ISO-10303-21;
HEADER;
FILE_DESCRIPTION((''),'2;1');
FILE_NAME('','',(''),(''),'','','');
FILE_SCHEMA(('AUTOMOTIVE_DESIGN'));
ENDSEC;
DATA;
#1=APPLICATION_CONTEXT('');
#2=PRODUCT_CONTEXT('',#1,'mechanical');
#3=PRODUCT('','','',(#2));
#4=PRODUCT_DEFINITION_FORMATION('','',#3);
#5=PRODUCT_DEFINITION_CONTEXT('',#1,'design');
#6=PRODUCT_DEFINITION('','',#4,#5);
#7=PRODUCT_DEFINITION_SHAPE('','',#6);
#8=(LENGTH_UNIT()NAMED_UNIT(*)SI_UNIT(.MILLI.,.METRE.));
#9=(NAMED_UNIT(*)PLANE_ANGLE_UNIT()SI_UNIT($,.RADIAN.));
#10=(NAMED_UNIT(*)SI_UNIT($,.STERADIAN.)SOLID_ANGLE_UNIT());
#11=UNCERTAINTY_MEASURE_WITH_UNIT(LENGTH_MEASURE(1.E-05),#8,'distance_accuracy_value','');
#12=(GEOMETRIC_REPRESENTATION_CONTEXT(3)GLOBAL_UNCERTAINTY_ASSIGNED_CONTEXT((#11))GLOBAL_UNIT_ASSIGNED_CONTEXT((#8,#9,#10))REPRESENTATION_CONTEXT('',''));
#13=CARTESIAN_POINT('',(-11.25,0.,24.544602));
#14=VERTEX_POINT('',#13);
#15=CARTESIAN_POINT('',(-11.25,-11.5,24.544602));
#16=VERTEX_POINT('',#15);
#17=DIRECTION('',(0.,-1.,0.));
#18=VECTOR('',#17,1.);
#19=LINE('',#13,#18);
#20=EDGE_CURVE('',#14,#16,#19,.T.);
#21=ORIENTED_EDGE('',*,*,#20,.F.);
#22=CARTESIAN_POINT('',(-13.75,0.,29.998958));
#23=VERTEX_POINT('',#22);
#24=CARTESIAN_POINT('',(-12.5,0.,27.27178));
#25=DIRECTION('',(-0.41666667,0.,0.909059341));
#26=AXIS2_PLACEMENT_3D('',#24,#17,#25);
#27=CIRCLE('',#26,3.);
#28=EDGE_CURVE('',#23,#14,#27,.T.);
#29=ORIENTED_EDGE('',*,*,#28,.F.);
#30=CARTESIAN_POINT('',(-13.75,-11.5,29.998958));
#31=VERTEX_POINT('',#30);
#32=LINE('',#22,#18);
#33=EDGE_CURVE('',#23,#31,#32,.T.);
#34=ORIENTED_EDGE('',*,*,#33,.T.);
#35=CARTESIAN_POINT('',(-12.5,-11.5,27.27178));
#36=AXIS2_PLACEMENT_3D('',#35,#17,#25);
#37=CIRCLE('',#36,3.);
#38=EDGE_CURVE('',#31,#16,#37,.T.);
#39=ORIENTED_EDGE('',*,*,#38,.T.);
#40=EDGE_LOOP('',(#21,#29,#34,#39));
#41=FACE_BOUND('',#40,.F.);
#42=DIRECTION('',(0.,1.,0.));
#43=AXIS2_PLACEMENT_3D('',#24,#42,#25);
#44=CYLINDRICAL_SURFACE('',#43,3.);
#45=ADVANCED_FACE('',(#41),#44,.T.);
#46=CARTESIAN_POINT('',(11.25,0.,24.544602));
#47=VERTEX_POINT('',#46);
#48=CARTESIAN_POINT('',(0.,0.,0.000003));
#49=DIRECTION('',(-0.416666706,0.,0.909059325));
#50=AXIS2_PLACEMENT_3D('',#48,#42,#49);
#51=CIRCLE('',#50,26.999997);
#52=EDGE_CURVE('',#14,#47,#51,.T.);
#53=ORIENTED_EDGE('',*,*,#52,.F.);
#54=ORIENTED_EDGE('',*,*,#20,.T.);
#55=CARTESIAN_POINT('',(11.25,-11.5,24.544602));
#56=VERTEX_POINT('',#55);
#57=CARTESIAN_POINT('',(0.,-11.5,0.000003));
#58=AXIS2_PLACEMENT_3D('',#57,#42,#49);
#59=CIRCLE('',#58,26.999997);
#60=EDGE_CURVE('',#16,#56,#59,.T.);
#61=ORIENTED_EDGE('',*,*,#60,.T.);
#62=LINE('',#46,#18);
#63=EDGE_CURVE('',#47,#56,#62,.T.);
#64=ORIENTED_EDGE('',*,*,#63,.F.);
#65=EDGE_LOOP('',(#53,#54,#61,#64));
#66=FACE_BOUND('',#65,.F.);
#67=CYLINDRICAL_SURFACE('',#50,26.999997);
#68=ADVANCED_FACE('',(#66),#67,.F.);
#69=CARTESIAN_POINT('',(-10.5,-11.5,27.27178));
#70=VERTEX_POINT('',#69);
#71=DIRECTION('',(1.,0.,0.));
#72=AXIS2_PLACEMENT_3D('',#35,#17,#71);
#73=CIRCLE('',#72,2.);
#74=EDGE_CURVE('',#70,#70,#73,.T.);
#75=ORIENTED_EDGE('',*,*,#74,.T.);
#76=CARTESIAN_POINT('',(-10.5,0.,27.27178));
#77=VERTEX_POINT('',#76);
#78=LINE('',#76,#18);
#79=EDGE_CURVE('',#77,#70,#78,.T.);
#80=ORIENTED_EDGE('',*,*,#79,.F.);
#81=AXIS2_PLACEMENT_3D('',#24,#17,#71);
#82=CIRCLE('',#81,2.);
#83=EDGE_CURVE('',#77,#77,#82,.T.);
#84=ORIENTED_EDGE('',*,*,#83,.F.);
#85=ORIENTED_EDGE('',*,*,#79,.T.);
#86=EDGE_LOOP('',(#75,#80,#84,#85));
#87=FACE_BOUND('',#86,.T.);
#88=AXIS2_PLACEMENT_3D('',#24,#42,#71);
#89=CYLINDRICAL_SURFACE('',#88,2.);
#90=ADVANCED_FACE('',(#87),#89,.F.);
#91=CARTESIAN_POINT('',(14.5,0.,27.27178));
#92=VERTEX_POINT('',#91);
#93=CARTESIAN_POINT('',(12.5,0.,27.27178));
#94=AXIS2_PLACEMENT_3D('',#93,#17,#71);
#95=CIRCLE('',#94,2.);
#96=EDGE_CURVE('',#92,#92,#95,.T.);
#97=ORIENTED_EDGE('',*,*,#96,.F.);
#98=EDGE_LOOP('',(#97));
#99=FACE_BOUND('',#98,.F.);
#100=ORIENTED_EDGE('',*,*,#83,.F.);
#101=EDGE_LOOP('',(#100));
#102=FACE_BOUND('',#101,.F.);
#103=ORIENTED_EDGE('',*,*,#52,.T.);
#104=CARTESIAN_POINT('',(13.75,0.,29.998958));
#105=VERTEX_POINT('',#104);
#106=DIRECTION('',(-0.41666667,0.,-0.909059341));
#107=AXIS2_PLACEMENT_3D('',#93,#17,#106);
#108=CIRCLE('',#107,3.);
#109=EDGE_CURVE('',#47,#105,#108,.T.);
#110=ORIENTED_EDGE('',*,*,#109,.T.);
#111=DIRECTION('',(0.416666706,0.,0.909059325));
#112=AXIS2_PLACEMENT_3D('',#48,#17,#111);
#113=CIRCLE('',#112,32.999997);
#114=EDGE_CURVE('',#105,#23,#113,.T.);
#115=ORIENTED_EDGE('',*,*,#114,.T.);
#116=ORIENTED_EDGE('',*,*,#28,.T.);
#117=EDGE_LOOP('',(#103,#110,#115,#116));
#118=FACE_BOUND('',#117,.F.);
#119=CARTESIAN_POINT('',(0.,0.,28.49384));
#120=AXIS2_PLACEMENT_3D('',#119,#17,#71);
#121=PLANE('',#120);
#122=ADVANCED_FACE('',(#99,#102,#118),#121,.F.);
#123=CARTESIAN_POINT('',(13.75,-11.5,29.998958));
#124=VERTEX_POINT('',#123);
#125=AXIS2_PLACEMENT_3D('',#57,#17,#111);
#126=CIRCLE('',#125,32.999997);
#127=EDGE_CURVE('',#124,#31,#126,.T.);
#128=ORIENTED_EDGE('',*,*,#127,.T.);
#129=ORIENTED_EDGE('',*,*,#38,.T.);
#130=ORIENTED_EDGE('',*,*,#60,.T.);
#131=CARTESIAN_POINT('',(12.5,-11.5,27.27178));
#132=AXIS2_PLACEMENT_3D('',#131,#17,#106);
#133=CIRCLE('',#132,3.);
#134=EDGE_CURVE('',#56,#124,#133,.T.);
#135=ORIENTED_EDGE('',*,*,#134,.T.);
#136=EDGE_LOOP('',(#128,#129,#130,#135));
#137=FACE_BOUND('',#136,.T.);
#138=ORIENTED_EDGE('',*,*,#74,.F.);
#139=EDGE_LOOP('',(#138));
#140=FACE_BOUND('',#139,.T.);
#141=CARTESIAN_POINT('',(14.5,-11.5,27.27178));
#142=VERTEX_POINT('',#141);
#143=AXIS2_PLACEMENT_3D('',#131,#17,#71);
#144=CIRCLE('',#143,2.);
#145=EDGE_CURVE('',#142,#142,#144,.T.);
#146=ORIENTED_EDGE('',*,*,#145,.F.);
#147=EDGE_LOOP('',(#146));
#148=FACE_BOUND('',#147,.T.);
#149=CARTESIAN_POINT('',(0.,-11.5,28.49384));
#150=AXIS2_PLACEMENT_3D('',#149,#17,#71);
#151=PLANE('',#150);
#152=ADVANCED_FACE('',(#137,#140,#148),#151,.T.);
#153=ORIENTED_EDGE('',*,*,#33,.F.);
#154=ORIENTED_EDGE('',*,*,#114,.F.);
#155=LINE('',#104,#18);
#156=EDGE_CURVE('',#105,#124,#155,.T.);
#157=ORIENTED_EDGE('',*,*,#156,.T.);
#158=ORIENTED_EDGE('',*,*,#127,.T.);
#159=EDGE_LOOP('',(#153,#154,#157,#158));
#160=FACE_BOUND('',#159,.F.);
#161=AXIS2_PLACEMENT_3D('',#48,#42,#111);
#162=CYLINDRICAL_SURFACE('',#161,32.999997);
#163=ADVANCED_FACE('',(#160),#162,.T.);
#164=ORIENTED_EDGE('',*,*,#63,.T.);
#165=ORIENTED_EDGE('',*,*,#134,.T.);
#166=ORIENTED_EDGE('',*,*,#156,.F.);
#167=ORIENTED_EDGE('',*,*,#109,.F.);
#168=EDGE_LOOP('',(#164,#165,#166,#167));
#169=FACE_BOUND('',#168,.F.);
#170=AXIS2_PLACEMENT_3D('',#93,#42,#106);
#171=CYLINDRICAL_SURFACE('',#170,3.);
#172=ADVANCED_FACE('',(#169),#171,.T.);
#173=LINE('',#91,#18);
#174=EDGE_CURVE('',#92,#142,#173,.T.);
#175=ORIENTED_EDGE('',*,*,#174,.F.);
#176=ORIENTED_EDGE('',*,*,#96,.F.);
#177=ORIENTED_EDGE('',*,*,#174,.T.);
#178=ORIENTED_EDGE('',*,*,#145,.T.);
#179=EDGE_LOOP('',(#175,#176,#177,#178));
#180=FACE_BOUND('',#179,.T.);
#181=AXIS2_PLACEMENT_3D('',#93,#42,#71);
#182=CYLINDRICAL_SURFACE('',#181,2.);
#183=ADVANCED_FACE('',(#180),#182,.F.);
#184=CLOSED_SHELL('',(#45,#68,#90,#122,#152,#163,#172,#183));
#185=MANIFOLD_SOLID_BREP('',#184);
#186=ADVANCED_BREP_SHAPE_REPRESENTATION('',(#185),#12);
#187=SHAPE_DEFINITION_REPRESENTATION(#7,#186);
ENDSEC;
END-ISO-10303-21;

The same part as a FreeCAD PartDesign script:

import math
import FreeCAD as App
import Part
import Sketcher
from FreeCAD import Vector
Q = App.Units.Quantity

doc = App.newDocument("Part")
params = doc.addObject("Spreadsheet::Sheet", "Params")
for row, (alias, value) in enumerate([
    ("sketch1_diameter", "4 mm"),
    ("sketch1_radius", "3 mm"),
    ("pad1_length", "11.5 mm"),
], start=1):
    params.set(f"A{row}", alias)
    params.set(f"B{row}", "=" + value)
    params.setAlias(f"B{row}", alias)

body = doc.addObject("PartDesign::Body", "Body")

# Sketch on XZ plane
sketch1 = body.newObject("Sketcher::SketchObject", "Sketch")
sketch1.AttachmentSupport = (doc.getObject("XZ_Plane"), [""])
sketch1.MapMode = "FlatFace"
sketch1.addGeometry([
    Part.ArcOfCircle(Part.Circle(Vector(12.5, 27.3, 0), Vector(0, 0, 1), 3), math.radians(-115), math.radians(65)),  # 0
    Part.ArcOfCircle(Part.Circle(Vector(0, 0, 0), Vector(0, 0, 1), 33), math.radians(65), math.radians(115)),  # 1
    Part.ArcOfCircle(Part.Circle(Vector(-12.5, 27.3, 0), Vector(0, 0, 1), 3), math.radians(115), math.radians(295)),  # 2
    Part.ArcOfCircle(Part.Circle(Vector(0, 0, 0), Vector(0, 0, 1), 27), math.radians(65), math.radians(115)),  # 3
    Part.Circle(Vector(-12.5, 27.3, 0), Vector(0, 0, 1), 2),  # 4
    Part.Circle(Vector(12.5, 27.3, 0), Vector(0, 0, 1), 2),  # 5
], False)
sketch1.addConstraint([
    Sketcher.Constraint("Tangent", 0, 2, 1, 1),
    Sketcher.Constraint("Tangent", 1, 2, 2, 1),
    Sketcher.Constraint("Tangent", 2, 2, 3, 2),
    Sketcher.Constraint("Tangent", 3, 1, 0, 1),
    Sketcher.Constraint("Coincident", 1, 3, -1, 1),
    Sketcher.Constraint("Coincident", 3, 3, -1, 1),
    Sketcher.Constraint("Coincident", 4, 3, 2, 3),
    Sketcher.Constraint("Coincident", 5, 3, 0, 3),
    Sketcher.Constraint("Equal", 4, 5),
    Sketcher.Constraint("Horizontal", 0, 3, 2, 3),
    Sketcher.Constraint("Diameter", 4, Q("4 mm")),
    Sketcher.Constraint("Radius", 0, Q("3 mm")),
    Sketcher.Constraint("DistanceX", 2, 3, 0, 3, Q("25 mm")),
    Sketcher.Constraint("DistanceX", -1, 1, 0, 2, Q("13.75 mm")),
])
sketch1.setExpression("Constraints[10]", "Params.sketch1_diameter")
sketch1.setExpression("Constraints[11]", "Params.sketch1_radius")
pad1 = body.newObject("PartDesign::Pad", "Pad")
pad1.Profile = sketch1
pad1.setExpression("Length", "Params.pad1_length")

doc.recompute()
